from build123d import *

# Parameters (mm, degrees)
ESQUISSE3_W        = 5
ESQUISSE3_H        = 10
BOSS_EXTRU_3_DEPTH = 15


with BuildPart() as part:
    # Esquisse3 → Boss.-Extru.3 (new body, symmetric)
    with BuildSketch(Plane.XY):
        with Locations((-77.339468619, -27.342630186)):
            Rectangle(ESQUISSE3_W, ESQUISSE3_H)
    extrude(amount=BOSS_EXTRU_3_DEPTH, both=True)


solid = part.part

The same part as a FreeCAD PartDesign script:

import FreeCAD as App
import Part
import Sketcher

V = App.Vector

doc = App.newDocument("Part")
body = doc.addObject("PartDesign::Body", "Body")

# Sketch on XY plane
sketch1 = doc.addObject("Sketcher::SketchObject", "Sketch")
body.addObject(sketch1)
sketch1.AttachmentSupport = (doc.XY_Plane, [""])
sketch1.MapMode = "FlatFace"
sketch1.addGeometry(Part.LineSegment(V(-80, -22, 0), V(-80, -32, 0)), False)
sketch1.addGeometry(Part.LineSegment(V(-80, -32, 0), V(-75, -32, 0)), False)
sketch1.addGeometry(Part.LineSegment(V(-75, -32, 0), V(-75, -22, 0)), False)
sketch1.addGeometry(Part.LineSegment(V(-75, -22, 0), V(-80, -22, 0)), False)
sketch1.addConstraint(Sketcher.Constraint("Coincident", 0, 2, 1, 1))
sketch1.addConstraint(Sketcher.Constraint("Coincident", 1, 2, 2, 1))
sketch1.addConstraint(Sketcher.Constraint("Coincident", 2, 2, 3, 1))
sketch1.addConstraint(Sketcher.Constraint("Coincident", 3, 2, 0, 1))
sketch1.addConstraint(Sketcher.Constraint("Vertical", 0))
sketch1.addConstraint(Sketcher.Constraint("Horizontal", 1))
sketch1.addConstraint(Sketcher.Constraint("Vertical", 2))
sketch1.addConstraint(Sketcher.Constraint("Horizontal", 3))
sketch1.addConstraint(Sketcher.Constraint("DistanceX", 1, 1, 1, 2, 5.0))
sketch1.addConstraint(Sketcher.Constraint("DistanceY", 0, 2, 0, 1, 10.0))
sketch1.addConstraint(Sketcher.Constraint("DistanceX", 0, 2, -1, 1, 79.839469))
sketch1.addConstraint(Sketcher.Constraint("DistanceY", 0, 2, -1, 1, 32.34263))
pad1 = doc.addObject("PartDesign::Pad", "Pad")
body.addObject(pad1)
pad1.Profile = sketch1
pad1.Length = 30
pad1.Midplane = True

doc.recompute()
